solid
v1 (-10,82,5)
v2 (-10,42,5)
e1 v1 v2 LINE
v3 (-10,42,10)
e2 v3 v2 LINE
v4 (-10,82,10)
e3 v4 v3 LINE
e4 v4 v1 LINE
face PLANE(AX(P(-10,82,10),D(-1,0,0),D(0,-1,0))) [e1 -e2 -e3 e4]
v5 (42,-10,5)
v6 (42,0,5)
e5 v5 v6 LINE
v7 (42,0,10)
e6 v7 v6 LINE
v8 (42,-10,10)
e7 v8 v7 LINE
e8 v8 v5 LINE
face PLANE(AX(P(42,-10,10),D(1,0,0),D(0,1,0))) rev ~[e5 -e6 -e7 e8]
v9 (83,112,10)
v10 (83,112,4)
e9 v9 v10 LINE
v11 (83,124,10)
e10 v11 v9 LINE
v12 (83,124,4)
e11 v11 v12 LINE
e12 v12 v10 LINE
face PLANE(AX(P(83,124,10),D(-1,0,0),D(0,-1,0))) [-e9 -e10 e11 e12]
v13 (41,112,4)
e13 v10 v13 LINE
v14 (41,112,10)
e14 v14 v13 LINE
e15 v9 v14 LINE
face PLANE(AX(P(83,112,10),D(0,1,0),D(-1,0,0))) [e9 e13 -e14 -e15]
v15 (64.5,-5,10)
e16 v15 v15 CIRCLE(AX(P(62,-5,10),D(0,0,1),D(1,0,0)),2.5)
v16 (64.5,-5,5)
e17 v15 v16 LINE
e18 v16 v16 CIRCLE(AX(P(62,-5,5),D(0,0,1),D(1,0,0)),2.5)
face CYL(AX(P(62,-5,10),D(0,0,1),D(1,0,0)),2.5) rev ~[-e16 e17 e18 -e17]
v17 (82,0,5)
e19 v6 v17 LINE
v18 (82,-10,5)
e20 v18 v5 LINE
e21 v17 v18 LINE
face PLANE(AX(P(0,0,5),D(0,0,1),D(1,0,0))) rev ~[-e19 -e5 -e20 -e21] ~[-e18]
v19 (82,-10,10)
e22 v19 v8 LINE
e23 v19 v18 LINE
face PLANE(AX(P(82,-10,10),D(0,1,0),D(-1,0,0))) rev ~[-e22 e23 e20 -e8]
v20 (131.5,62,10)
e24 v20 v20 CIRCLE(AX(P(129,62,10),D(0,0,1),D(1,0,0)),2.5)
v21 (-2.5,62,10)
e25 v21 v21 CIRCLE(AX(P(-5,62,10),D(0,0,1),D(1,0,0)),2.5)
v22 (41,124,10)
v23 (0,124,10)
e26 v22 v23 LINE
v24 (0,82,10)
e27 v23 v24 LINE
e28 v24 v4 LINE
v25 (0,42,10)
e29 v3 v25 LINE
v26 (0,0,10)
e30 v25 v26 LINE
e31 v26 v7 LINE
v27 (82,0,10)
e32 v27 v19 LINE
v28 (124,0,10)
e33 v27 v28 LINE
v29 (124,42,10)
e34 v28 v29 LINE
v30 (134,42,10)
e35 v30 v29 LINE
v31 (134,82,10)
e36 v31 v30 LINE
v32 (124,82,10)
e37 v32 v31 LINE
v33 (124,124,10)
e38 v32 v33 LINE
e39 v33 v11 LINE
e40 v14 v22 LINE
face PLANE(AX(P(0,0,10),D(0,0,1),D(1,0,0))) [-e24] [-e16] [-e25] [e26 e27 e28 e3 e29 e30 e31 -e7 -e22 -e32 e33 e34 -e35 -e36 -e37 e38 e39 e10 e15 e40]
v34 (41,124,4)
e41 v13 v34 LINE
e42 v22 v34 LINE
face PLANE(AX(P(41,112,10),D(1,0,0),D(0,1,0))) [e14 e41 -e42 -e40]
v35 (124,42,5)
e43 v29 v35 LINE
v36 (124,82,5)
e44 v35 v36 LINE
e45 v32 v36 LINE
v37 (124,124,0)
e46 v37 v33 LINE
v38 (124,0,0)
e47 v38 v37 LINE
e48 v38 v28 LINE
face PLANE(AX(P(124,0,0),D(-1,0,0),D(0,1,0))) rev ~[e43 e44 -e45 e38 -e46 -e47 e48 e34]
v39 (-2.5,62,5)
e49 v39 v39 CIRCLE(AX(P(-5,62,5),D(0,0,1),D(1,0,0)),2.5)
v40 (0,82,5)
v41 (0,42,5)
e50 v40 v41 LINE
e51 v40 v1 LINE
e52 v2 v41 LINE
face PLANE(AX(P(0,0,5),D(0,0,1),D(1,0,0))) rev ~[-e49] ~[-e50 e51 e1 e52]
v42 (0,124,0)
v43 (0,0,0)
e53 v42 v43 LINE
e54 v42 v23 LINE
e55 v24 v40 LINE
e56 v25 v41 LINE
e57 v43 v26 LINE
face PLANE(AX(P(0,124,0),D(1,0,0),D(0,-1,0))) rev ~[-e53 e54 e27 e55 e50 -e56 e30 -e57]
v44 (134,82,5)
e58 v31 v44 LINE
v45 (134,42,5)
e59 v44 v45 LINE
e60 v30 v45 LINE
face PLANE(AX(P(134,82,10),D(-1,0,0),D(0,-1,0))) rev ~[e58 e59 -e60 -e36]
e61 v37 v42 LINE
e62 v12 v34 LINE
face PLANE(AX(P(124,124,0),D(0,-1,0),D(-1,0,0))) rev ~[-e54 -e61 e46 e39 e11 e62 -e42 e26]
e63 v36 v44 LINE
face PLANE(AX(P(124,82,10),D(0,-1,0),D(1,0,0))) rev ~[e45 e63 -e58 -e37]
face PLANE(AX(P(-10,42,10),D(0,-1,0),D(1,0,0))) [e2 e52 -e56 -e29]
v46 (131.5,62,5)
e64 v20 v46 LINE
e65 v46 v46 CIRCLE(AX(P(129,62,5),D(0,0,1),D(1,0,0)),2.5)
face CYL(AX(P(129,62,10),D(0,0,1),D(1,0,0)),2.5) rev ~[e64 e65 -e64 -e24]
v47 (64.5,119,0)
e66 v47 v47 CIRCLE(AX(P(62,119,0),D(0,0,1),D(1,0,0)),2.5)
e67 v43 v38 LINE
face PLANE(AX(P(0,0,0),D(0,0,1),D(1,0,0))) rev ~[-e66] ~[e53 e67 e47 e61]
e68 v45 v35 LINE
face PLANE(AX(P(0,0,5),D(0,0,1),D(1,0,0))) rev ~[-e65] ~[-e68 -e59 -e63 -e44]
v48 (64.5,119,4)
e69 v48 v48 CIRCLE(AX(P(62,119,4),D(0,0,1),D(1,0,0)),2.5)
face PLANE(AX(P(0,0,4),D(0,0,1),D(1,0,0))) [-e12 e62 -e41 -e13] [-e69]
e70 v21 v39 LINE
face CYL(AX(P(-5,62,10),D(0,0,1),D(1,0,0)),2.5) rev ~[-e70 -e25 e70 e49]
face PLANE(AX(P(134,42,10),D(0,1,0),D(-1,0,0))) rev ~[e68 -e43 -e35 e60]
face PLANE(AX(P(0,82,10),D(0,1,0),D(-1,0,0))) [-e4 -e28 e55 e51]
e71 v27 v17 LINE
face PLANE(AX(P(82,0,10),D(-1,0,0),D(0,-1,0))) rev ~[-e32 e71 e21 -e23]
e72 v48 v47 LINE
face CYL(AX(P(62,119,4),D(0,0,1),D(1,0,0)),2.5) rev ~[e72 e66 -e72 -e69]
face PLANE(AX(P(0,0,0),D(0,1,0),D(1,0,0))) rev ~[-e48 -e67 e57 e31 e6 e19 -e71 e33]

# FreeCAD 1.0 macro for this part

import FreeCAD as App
import Part
import Sketcher
from FreeCAD import Vector
Q = App.Units.Quantity


def add_polygon(sketch, points):
    """Adds a closed chain of lines whose ends are joined by coincident constraints."""
    first, n = sketch.GeometryCount, len(points)
    for a, b in zip(points, points[1:] + points[:1]):
        sketch.addGeometry(Part.LineSegment(App.Vector(*a, 0), App.Vector(*b, 0)), False)
    for i in range(n):
        sketch.addConstraint(Sketcher.Constraint("Coincident", first + i, 2, first + (i + 1) % n, 1))

doc = App.newDocument("Part")
params = doc.addObject("Spreadsheet::Sheet", "Params")
for row, (alias, value) in enumerate([
    ("sketch1_width", "124 mm"),
    ("pad1_length", "10 mm"),
    ("sketch2_diameter", "5 mm"),
    ("sketch2_width", "40 mm"),
    ("sketch2_width2", "10 mm"),
    ("pad2_length", "5 mm"),
    ("sketch3_width", "42 mm"),
    ("sketch3_height", "12 mm"),
    ("pocket1_length", "6 mm"),
    ("sketch4_diameter", "5 mm"),
    ("sketch5_diameter", "5 mm"),
    ("sketch5_width", "10 mm"),
    ("sketch5_height", "40 mm"),
    ("pad3_length", "5 mm"),
], start=1):
    params.set(f"A{row}", alias)
    params.set(f"B{row}", "=" + value)
    params.setAlias(f"B{row}", alias)

body = doc.addObject("PartDesign::Body", "Body")

# Sketch on XY plane
sketch1 = doc.addObject("Sketcher::SketchObject", "Sketch")
body.addObject(sketch1)
sketch1.AttachmentSupport = (doc.XY_Plane, [""])
sketch1.MapMode = "FlatFace"
add_polygon(sketch1, [(0, 124), (0, 0), (124, 0), (124, 124)])  # lines 0-3
sketch1.addConstraint(Sketcher.Constraint("Vertical", 0))
sketch1.addConstraint(Sketcher.Constraint("Horizontal", 1))
sketch1.addConstraint(Sketcher.Constraint("Vertical", 2))
sketch1.addConstraint(Sketcher.Constraint("Horizontal", 3))
sketch1.addConstraint(Sketcher.Constraint("Coincident", 0, 2, -1, 1))
sketch1.addConstraint(Sketcher.Constraint("Equal", 3, 0))
sketch1.addConstraint(Sketcher.Constraint("DistanceX", 1, 1, 1, 2, Q("124 mm")))
sketch1.setExpression("Constraints[10]", "Params.sketch1_width")
pad1 = doc.addObject("PartDesign::Pad", "Pad")
body.addObject(pad1)
pad1.Profile = sketch1
pad1.setExpression("Length", "Params.pad1_length")

# Sketch on XY plane
sketch2 = doc.addObject("Sketcher::SketchObject", "Sketch001")
body.addObject(sketch2)
sketch2.AttachmentSupport = (doc.XY_Plane, [""])
sketch2.MapMode = "FlatFace"
sketch2.AttachmentOffset = App.Placement(Vector(0, 0, 10), App.Rotation())
add_polygon(sketch2, [(82, 0), (42, 0), (42, -10), (82, -10)])  # lines 0-3
sketch2.addGeometry(Part.Circle(Vector(62, -5, 0), Vector(0, 0, 1), 2.5), False)  # 4
add_polygon(sketch2, [(0, 42), (0, 82), (-10, 82), (-10, 42)])  # lines 5-8
sketch2.addGeometry(Part.Circle(Vector(-5, 62, 0), Vector(0, 0, 1), 2.5), False)  # 9
sketch2.addConstraint(Sketcher.Constraint("Horizontal", 0))
sketch2.addConstraint(Sketcher.Constraint("Vertical", 1))
sketch2.addConstraint(Sketcher.Constraint("Horizontal", 2))
sketch2.addConstraint(Sketcher.Constraint("Vertical", 3))
sketch2.addConstraint(Sketcher.Constraint("Vertical", 5))
sketch2.addConstraint(Sketcher.Constraint("Horizontal", 6))
sketch2.addConstraint(Sketcher.Constraint("Vertical", 7))
sketch2.addConstraint(Sketcher.Constraint("Horizontal", 8))
sketch2.addConstraint(Sketcher.Constraint("Equal", 4, 9))
sketch2.addConstraint(Sketcher.Constraint("PointOnObject", 0, 2, -1))
sketch2.addConstraint(Sketcher.Constraint("PointOnObject", 5, 2, -2))
sketch2.addConstraint(Sketcher.Constraint("Equal", 8, 1))
sketch2.addConstraint(Sketcher.Constraint("Equal", 2, 5))
sketch2.addConstraint(Sketcher.Constraint("Diameter", 4, Q("5 mm")))
sketch2.addConstraint(Sketcher.Constraint("DistanceX", 0, 2, 0, 1, Q("40 mm")))
sketch2.addConstraint(Sketcher.Constraint("DistanceX", 6, 2, 6, 1, Q("10 mm")))
sketch2.addConstraint(Sketcher.Constraint("DistanceY", 4, 3, -1, 1, Q("5 mm")))
sketch2.addConstraint(Sketcher.Constraint("DistanceX", 9, 3, -1, 1, Q("5 mm")))
sketch2.addConstraint(Sketcher.Constraint("DistanceX", -1, 1, 4, 3, Q("62 mm")))
sketch2.addConstraint(Sketcher.Constraint("DistanceY", -1, 1, 9, 3, Q("62 mm")))
sketch2.addConstraint(Sketcher.Constraint("DistanceX", -1, 1, 0, 2, Q("42 mm")))
sketch2.addConstraint(Sketcher.Constraint("DistanceY", -1, 1, 5, 2, Q("82 mm")))
sketch2.setExpression("Constraints[21]", "Params.sketch2_diameter")
sketch2.setExpression("Constraints[22]", "Params.sketch2_width")
sketch2.setExpression("Constraints[23]", "Params.sketch2_width2")
pad2 = doc.addObject("PartDesign::Pad", "Pad001")
body.addObject(pad2)
pad2.Profile = sketch2
pad2.setExpression("Length", "Params.pad2_length")
pad2.Reversed = True

# Sketch on XY plane
sketch3 = doc.addObject("Sketcher::SketchObject", "Sketch002")
body.addObject(sketch3)
sketch3.AttachmentSupport = (doc.XY_Plane, [""])
sketch3.MapMode = "FlatFace"
sketch3.AttachmentOffset = App.Placement(Vector(0, 0, 10), App.Rotation())
add_polygon(sketch3, [(83, 112), (83, 124), (41, 124), (41, 112)])  # lines 0-3
sketch3.addConstraint(Sketcher.Constraint("Vertical", 0))
sketch3.addConstraint(Sketcher.Constraint("Horizontal", 1))
sketch3.addConstraint(Sketcher.Constraint("Vertical", 2))
sketch3.addConstraint(Sketcher.Constraint("Horizontal", 3))
sketch3.addConstraint(Sketcher.Constraint("DistanceX", 1, 2, 1, 1, Q("42 mm")))
sketch3.addConstraint(Sketcher.Constraint("DistanceY", 0, 1, 0, 2, Q("12 mm")))
sketch3.addConstraint(Sketcher.Constraint("DistanceX", -1, 1, 0, 2, Q("83 mm")))
sketch3.addConstraint(Sketcher.Constraint("DistanceY", -1, 1, 0, 2, Q("124 mm")))
sketch3.setExpression("Constraints[8]", "Params.sketch3_width")
sketch3.setExpression("Constraints[9]", "Params.sketch3_height")
pocket1 = doc.addObject("PartDesign::Pocket", "Pocket")
body.addObject(pocket1)
pocket1.Profile = sketch3
pocket1.setExpression("Length", "Params.pocket1_length")

# Sketch on XY plane
sketch4 = doc.addObject("Sketcher::SketchObject", "Sketch003")
body.addObject(sketch4)
sketch4.AttachmentSupport = (doc.XY_Plane, [""])
sketch4.MapMode = "FlatFace"
sketch4.AttachmentOffset = App.Placement(Vector(0, 0, 4), App.Rotation())
sketch4.addGeometry(Part.Circle(Vector(62, 119, 0), Vector(0, 0, 1), 2.5), False)
sketch4.addConstraint(Sketcher.Constraint("Diameter", 0, Q("5 mm")))
sketch4.addConstraint(Sketcher.Constraint("DistanceX", -1, 1, 0, 3, Q("62 mm")))
sketch4.addConstraint(Sketcher.Constraint("DistanceY", -1, 1, 0, 3, Q("119 mm")))
sketch4.setExpression("Constraints[0]", "Params.sketch4_diameter")
pocket2 = doc.addObject("PartDesign::Pocket", "Pocket001")
body.addObject(pocket2)
pocket2.Profile = sketch4
pocket2.Type = "ThroughAll"

# Sketch on XY plane
sketch5 = doc.addObject("Sketcher::SketchObject", "Sketch004")
body.addObject(sketch5)
sketch5.AttachmentSupport = (doc.XY_Plane, [""])
sketch5.MapMode = "FlatFace"
sketch5.AttachmentOffset = App.Placement(Vector(0, 0, 10), App.Rotation())
add_polygon(sketch5, [(124, 82), (124, 42), (134, 42), (134, 82)])  # lines 0-3
sketch5.addGeometry(Part.Circle(Vector(129, 62, 0), Vector(0, 0, 1), 2.5), False)  # 4
sketch5.addConstraint(Sketcher.Constraint("Vertical", 0))
sketch5.addConstraint(Sketcher.Constraint("Horizontal", 1))
sketch5.addConstraint(Sketcher.Constraint("Vertical", 2))
sketch5.addConstraint(Sketcher.Constraint("Horizontal", 3))
sketch5.addConstraint(Sketcher.Constraint("Diameter", 4, Q("5 mm")))
sketch5.addConstraint(Sketcher.Constraint("DistanceX", 1, 1, 1, 2, Q("10 mm")))
sketch5.addConstraint(Sketcher.Constraint("DistanceY", 0, 2, 0, 1, Q("40 mm")))
sketch5.addConstraint(Sketcher.Constraint("DistanceX", 0, 2, 4, 3, Q("5 mm")))
sketch5.addConstraint(Sketcher.Constraint("DistanceX", -1, 1, 4, 3, Q("129 mm")))
sketch5.addConstraint(Sketcher.Constraint("DistanceY", -1, 1, 4, 3, Q("62 mm")))
sketch5.addConstraint(Sketcher.Constraint("DistanceY", -1, 1, 0, 2, Q("42 mm")))
sketch5.setExpression("Constraints[8]", "Params.sketch5_diameter")
sketch5.setExpression("Constraints[9]", "Params.sketch5_width")
sketch5.setExpression("Constraints[10]", "Params.sketch5_height")
pad3 = doc.addObject("PartDesign::Pad", "Pad002")
body.addObject(pad3)
pad3.Profile = sketch5
pad3.setExpression("Length", "Params.pad3_length")
pad3.Reversed = True

doc.recompute()
